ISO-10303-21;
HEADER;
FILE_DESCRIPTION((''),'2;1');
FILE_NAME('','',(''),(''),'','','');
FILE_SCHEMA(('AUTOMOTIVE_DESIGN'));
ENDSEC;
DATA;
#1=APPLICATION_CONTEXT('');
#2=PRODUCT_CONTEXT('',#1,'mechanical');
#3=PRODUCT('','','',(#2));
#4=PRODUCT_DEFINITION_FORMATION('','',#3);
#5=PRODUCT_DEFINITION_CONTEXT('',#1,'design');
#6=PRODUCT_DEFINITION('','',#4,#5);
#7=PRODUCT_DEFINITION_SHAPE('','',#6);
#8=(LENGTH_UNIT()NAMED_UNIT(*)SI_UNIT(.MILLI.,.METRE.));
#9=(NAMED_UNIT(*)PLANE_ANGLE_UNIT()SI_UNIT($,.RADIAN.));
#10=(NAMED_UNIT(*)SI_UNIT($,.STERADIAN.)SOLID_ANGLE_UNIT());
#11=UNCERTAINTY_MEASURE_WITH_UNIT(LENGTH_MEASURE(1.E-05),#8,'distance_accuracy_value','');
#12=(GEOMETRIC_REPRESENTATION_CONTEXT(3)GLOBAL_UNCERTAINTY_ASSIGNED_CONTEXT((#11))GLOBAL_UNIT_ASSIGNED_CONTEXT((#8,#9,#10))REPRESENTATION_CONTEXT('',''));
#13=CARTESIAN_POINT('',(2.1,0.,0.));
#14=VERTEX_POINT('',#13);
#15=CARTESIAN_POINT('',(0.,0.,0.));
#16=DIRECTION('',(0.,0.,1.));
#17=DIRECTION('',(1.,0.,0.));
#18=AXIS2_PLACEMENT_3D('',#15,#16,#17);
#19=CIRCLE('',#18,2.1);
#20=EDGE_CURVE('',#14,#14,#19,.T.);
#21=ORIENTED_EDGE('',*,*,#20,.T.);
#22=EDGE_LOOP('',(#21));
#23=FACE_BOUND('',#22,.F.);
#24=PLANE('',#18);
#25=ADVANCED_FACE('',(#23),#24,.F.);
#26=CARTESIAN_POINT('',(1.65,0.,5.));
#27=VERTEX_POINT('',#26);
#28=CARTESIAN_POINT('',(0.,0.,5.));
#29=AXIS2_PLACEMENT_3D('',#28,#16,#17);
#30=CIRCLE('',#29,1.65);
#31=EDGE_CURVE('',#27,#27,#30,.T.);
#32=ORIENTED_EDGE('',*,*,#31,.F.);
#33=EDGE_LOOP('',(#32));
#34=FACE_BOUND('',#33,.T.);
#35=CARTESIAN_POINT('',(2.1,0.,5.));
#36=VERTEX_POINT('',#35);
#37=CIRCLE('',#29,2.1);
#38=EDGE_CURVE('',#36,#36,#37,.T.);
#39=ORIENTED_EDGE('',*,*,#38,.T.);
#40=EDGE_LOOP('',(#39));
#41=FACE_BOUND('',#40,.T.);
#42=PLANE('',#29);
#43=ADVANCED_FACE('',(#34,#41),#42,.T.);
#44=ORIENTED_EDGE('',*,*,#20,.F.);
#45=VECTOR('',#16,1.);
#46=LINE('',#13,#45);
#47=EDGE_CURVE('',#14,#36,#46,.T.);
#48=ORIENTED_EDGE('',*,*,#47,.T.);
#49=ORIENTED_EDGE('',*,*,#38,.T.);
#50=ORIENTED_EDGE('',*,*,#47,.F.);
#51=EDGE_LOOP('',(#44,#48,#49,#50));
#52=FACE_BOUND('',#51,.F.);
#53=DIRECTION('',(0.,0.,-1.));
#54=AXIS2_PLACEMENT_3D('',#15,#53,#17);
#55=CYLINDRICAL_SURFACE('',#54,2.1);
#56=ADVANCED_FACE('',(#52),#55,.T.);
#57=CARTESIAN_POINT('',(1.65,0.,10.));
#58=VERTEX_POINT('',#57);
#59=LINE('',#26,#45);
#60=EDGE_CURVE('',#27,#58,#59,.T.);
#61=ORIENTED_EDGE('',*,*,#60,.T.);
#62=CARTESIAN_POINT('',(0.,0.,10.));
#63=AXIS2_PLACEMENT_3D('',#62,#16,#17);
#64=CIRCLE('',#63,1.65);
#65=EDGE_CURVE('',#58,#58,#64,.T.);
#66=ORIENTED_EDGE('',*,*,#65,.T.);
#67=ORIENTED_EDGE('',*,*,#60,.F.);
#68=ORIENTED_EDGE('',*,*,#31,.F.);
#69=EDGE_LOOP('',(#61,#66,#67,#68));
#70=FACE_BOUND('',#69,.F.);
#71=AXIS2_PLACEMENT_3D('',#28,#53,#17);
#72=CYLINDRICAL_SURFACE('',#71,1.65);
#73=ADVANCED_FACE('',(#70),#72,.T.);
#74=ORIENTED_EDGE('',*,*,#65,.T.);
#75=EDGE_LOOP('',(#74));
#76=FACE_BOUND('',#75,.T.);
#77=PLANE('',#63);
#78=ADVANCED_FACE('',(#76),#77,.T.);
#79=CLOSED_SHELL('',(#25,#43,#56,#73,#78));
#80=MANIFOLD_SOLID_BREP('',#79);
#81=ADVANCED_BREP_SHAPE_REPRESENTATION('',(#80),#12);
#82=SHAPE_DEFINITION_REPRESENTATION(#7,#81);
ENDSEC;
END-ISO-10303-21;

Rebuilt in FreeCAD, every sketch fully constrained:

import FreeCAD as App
import Part
import Sketcher
from FreeCAD import Vector

doc = App.newDocument("Part")
params = doc.addObject("Spreadsheet::Sheet", "Params")
for row, (alias, value) in enumerate([
    ("sketch1_diameter", "4.2 mm"),
    ("pad1_length", "5 mm"),
    ("sketch2_diameter", "3.3 mm"),
    ("pad2_length", "5 mm"),
], start=1):
    params.set(f"A{row}", alias)
    params.set(f"B{row}", "=" + value)
    params.setAlias(f"B{row}", alias)

body = doc.addObject("PartDesign::Body", "Body")

# Sketch on XY plane
sketch1 = doc.addObject("Sketcher::SketchObject", "Sketch")
body.addObject(sketch1)
sketch1.AttachmentSupport = (doc.XY_Plane, [""])
sketch1.MapMode = "FlatFace"
sketch1.addGeometry(Part.Circle(Vector(0, 0, 0), Vector(0, 0, 1), 2.1), False)
sketch1.addConstraint([
    Sketcher.Constraint("Coincident", 0, 3, -1, 1),
    Sketcher.Constraint("Diameter", 0, 4.2),
])
sketch1.setExpression("Constraints[1]", "Params.sketch1_diameter")
pad1 = doc.addObject("PartDesign::Pad", "Pad")
body.addObject(pad1)
pad1.Profile = sketch1
pad1.setExpression("Length", "Params.pad1_length")

# Sketch on XY plane
sketch2 = doc.addObject("Sketcher::SketchObject", "Sketch001")
body.addObject(sketch2)
sketch2.AttachmentSupport = (doc.XY_Plane, [""])
sketch2.MapMode = "FlatFace"
sketch2.AttachmentOffset = App.Placement(Vector(0, 0, 5), App.Rotation())
sketch2.addGeometry(Part.Circle(Vector(0, 0, 0), Vector(0, 0, 1), 1.6), False)
sketch2.addConstraint([
    Sketcher.Constraint("Coincident", 0, 3, -1, 1),
    Sketcher.Constraint("Diameter", 0, 3.3),
])
sketch2.setExpression("Constraints[1]", "Params.sketch2_diameter")
pad2 = doc.addObject("PartDesign::Pad", "Pad001")
body.addObject(pad2)
pad2.Profile = sketch2
pad2.setExpression("Length", "Params.pad2_length")

doc.recompute()
